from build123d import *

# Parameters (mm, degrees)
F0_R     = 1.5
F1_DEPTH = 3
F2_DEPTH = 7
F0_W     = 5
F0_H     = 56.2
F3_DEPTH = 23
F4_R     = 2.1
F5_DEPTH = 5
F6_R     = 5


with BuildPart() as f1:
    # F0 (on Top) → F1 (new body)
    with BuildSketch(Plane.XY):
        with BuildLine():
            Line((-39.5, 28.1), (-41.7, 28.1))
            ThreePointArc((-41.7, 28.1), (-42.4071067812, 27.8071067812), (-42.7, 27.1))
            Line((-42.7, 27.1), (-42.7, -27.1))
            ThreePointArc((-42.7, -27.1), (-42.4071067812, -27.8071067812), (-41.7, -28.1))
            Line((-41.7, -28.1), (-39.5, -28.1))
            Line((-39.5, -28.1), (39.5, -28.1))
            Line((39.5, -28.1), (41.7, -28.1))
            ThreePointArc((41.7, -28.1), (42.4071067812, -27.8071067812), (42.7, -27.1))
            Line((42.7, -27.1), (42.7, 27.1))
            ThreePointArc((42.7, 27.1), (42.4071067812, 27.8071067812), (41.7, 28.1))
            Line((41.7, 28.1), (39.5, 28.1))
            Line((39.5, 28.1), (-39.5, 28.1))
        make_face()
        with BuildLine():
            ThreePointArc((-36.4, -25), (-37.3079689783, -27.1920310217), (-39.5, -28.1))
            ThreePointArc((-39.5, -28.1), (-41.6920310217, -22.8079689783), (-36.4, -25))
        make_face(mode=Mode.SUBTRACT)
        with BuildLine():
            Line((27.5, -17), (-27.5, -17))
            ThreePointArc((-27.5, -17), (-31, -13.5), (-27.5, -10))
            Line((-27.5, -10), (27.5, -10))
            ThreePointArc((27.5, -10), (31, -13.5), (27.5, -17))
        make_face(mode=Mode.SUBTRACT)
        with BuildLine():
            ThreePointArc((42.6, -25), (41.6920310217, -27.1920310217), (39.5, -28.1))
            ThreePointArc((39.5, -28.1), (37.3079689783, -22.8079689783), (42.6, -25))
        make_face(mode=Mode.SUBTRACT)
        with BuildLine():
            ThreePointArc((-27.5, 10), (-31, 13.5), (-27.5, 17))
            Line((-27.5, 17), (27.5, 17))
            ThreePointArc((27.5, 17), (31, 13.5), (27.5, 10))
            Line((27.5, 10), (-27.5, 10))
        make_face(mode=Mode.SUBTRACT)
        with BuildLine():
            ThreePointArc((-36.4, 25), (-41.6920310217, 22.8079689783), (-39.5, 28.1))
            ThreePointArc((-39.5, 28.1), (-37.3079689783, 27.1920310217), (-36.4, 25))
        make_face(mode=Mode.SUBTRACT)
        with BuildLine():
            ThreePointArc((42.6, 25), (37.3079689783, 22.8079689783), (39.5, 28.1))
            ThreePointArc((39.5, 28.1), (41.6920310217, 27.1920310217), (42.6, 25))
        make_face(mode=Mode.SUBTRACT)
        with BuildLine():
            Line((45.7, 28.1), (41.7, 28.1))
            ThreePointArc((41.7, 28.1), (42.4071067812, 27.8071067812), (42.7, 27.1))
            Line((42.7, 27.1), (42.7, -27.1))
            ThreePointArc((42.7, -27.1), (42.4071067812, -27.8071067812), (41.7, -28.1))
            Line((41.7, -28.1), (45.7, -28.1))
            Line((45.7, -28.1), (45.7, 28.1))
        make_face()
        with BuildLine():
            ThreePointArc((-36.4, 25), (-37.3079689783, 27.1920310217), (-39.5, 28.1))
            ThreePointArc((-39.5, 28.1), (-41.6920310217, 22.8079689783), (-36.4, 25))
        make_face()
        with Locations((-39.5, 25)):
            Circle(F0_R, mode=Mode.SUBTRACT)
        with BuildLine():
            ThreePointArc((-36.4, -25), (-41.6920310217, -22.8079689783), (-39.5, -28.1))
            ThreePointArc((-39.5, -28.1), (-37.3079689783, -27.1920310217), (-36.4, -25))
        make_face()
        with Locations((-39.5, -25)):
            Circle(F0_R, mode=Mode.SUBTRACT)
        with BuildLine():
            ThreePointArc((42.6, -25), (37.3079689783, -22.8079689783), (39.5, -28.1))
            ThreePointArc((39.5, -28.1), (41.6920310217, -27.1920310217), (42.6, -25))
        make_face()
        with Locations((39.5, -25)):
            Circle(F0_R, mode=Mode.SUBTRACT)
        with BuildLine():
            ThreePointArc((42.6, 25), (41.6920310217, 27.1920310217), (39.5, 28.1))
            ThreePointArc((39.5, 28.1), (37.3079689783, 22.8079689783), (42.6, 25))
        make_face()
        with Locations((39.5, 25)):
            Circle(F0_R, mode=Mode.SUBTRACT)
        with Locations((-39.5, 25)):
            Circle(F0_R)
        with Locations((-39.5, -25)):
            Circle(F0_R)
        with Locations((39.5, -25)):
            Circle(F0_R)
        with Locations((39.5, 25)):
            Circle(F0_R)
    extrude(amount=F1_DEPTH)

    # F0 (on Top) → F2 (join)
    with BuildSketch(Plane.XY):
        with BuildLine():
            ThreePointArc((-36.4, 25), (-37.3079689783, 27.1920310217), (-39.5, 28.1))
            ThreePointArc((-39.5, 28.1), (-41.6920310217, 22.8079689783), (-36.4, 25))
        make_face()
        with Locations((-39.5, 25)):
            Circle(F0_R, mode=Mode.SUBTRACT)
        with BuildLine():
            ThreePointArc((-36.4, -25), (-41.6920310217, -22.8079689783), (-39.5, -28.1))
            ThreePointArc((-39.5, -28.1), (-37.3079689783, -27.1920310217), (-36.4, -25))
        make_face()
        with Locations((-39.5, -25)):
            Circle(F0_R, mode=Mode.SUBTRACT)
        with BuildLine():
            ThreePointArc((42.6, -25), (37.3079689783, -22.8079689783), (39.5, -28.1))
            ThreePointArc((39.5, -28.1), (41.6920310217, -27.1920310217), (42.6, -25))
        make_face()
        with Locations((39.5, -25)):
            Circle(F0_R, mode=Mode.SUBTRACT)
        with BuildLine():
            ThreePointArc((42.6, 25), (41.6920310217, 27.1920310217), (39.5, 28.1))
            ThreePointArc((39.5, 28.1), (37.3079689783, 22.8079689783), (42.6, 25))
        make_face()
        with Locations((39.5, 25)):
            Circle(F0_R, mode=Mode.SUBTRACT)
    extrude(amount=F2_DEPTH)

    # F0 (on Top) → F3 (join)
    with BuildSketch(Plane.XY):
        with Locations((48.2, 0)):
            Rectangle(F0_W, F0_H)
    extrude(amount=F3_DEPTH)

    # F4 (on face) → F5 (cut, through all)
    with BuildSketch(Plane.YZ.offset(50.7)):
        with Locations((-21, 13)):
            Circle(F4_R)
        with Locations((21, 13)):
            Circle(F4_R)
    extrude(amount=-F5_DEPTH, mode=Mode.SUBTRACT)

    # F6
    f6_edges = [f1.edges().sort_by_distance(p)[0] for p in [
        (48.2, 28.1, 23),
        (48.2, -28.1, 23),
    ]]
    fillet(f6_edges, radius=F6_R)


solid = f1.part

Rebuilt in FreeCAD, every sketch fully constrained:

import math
import FreeCAD as App
import Part
import Sketcher

V = App.Vector


def edges_at(feature, points):
    """Names of the edges that pass closest to the given points."""
    edges = feature.Shape.Edges
    near = lambda p: min(range(len(edges)), key=lambda i: edges[i].distToShape(Part.Vertex(*p))[0])
    return sorted({f"Edge{near(p) + 1}" for p in points})


def add_polygon(sketch, points):
    """Adds a closed chain of lines whose ends are joined by coincident constraints."""
    first, n = sketch.GeometryCount, len(points)
    for a, b in zip(points, points[1:] + points[:1]):
        sketch.addGeometry(Part.LineSegment(App.Vector(*a, 0), App.Vector(*b, 0)), False)
    for i in range(n):
        sketch.addConstraint(Sketcher.Constraint("Coincident", first + i, 2, first + (i + 1) % n, 1))

doc = App.newDocument("Part")
body = doc.addObject("PartDesign::Body", "Body")

sketch1 = doc.addObject("Sketcher::SketchObject", "Sketch")
body.addObject(sketch1)
sketch1.AttachmentSupport = (doc.XY_Plane, [""])
sketch1.MapMode = "FlatFace"
sketch1.addGeometry([
    Part.LineSegment(V(45.7, -28.1, 0), V(45.7, 28.1, 0)),
    Part.LineSegment(V(45.7, 28.1, 0), V(-41.7, 28.1, 0)),
    Part.ArcOfCircle(Part.Circle(V(-41.7, 27.1, 0), V(0, 0, 1), 1), math.radians(90), math.radians(180)),
    Part.LineSegment(V(-42.7, 27.1, 0), V(-42.7, -27.1, 0)),
    Part.ArcOfCircle(Part.Circle(V(-41.7, -27.1, 0), V(0, 0, 1), 1), math.radians(180), math.radians(270)),
    Part.LineSegment(V(-41.7, -28.1, 0), V(45.7, -28.1, 0)),
    Part.ArcOfCircle(Part.Circle(V(27.5, -13.5, 0), V(0, 0, 1), 3.5), math.radians(-90), math.radians(90)),
    Part.LineSegment(V(27.5, -17, 0), V(-27.5, -17, 0)),
    Part.ArcOfCircle(Part.Circle(V(-27.5, -13.5, 0), V(0, 0, 1), 3.5), math.radians(90), math.radians(270)),
    Part.LineSegment(V(-27.5, -10, 0), V(27.5, -10, 0)),
    Part.LineSegment(V(27.5, 10, 0), V(-27.5, 10, 0)),
    Part.ArcOfCircle(Part.Circle(V(-27.5, 13.5, 0), V(0, 0, 1), 3.5), math.radians(90), math.radians(270)),
    Part.LineSegment(V(-27.5, 17, 0), V(27.5, 17, 0)),
    Part.ArcOfCircle(Part.Circle(V(27.5, 13.5, 0), V(0, 0, 1), 3.5), math.radians(-90), math.radians(90)),
], False)
sketch1.addConstraint([
    Sketcher.Constraint("Coincident", 0, 2, 1, 1),
    Sketcher.Constraint("Tangent", 1, 2, 2, 1),
    Sketcher.Constraint("Tangent", 2, 2, 3, 1),
    Sketcher.Constraint("Tangent", 3, 2, 4, 1),
    Sketcher.Constraint("Tangent", 4, 2, 5, 1),
    Sketcher.Constraint("Coincident", 5, 2, 0, 1),
    Sketcher.Constraint("Tangent", 6, 1, 7, 1),
    Sketcher.Constraint("Tangent", 7, 2, 8, 2),
    Sketcher.Constraint("Tangent", 8, 1, 9, 1),
    Sketcher.Constraint("Tangent", 9, 2, 6, 2),
    Sketcher.Constraint("Tangent", 10, 2, 11, 2),
    Sketcher.Constraint("Tangent", 11, 1, 12, 1),
    Sketcher.Constraint("Tangent", 12, 2, 13, 2),
    Sketcher.Constraint("Tangent", 13, 1, 10, 1),
    Sketcher.Constraint("Vertical", 0),
    Sketcher.Constraint("Horizontal", 1),
    Sketcher.Constraint("Vertical", 3),
    Sketcher.Constraint("Horizontal", 5),
    Sketcher.Constraint("Horizontal", 7),
    Sketcher.Constraint("Horizontal", 9),
    Sketcher.Constraint("Horizontal", 10),
    Sketcher.Constraint("Horizontal", 12),
    Sketcher.Constraint("Equal", 2, 4),
    Sketcher.Constraint("Equal", 8, 11),
    Sketcher.Constraint("Symmetric", 6, 3, 11, 3, -1, 1),
    Sketcher.Constraint("Vertical", 8, 3, 11, 3),
    Sketcher.Constraint("Vertical", 6, 3, 13, 3),
    Sketcher.Constraint("Radius", 2, 1.0),
    Sketcher.Constraint("Radius", 6, 3.5),
    Sketcher.Constraint("DistanceX", 7, 2, 7, 1, 55.0),
    Sketcher.Constraint("DistanceX", 1, 2, 1, 1, 87.4),
    Sketcher.Constraint("DistanceY", 0, 1, 0, 2, 56.2),
    Sketcher.Constraint("DistanceY", 6, 1, -1, 1, 17.0),
    Sketcher.Constraint("DistanceX", 2, 3, -1, 1, 41.7),
    Sketcher.Constraint("DistanceY", -1, 1, 2, 3, 27.1),
])
pad1 = doc.addObject("PartDesign::Pad", "Pad")
body.addObject(pad1)
pad1.Profile = sketch1
pad1.Length = 3

sketch2 = doc.addObject("Sketcher::SketchObject", "Sketch001")
body.addObject(sketch2)
sketch2.AttachmentSupport = (doc.XY_Plane, [""])
sketch2.MapMode = "FlatFace"
sketch2.addGeometry([
    Part.ArcOfCircle(Part.Circle(V(-39.5, 25, 0), V(0, 0, 1), 3.1), math.radians(0), math.radians(90)),
    Part.ArcOfCircle(Part.Circle(V(-39.5, 25, 0), V(0, 0, 1), 3.1), math.radians(90), math.radians(360)),
    Part.Circle(V(-39.5, 25, 0), V(0, 0, 1), 1.5),
    Part.ArcOfCircle(Part.Circle(V(-39.5, -25, 0), V(0, 0, 1), 3.1), math.radians(0), math.radians(270)),
    Part.ArcOfCircle(Part.Circle(V(-39.5, -25, 0), V(0, 0, 1), 3.1), math.radians(-90), math.radians(0)),
    Part.Circle(V(-39.5, -25, 0), V(0, 0, 1), 1.5),
    Part.ArcOfCircle(Part.Circle(V(39.5, -25, 0), V(0, 0, 1), 3.1), math.radians(0), math.radians(270)),
    Part.ArcOfCircle(Part.Circle(V(39.5, -25, 0), V(0, 0, 1), 3.1), math.radians(-90), math.radians(0)),
    Part.Circle(V(39.5, -25, 0), V(0, 0, 1), 1.5),
    Part.ArcOfCircle(Part.Circle(V(39.5, 25, 0), V(0, 0, 1), 3.1), math.radians(0), math.radians(90)),
    Part.ArcOfCircle(Part.Circle(V(39.5, 25, 0), V(0, 0, 1), 3.1), math.radians(90), math.radians(360)),
    Part.Circle(V(39.5, 25, 0), V(0, 0, 1), 1.5),
], False)
sketch2.addConstraint([
    Sketcher.Constraint("Tangent", 0, 1, 1, 2),
    Sketcher.Constraint("Coincident", 1, 1, 0, 2),
    Sketcher.Constraint("Tangent", 3, 1, 4, 2),
    Sketcher.Constraint("Coincident", 4, 1, 3, 2),
    Sketcher.Constraint("Tangent", 6, 1, 7, 2),
    Sketcher.Constraint("Coincident", 7, 1, 6, 2),
    Sketcher.Constraint("Tangent", 9, 1, 10, 2),
    Sketcher.Constraint("Coincident", 10, 1, 9, 2),
    Sketcher.Constraint("Coincident", 2, 3, 0, 3),
    Sketcher.Constraint("Coincident", 5, 3, 3, 3),
    Sketcher.Constraint("Coincident", 8, 3, 6, 3),
    Sketcher.Constraint("Coincident", 11, 3, 9, 3),
    Sketcher.Constraint("Equal", 1, 3),
    Sketcher.Constraint("Equal", 2, 5),
    Sketcher.Constraint("Equal", 4, 6),
    Sketcher.Constraint("Equal", 5, 8),
    Sketcher.Constraint("Equal", 7, 9),
    Sketcher.Constraint("Equal", 8, 11),
    Sketcher.Constraint("Symmetric", 0, 3, 6, 3, -1, 1),
    Sketcher.Constraint("Symmetric", 3, 3, 9, 3, -1, 1),
    Sketcher.Constraint("Symmetric", 3, 3, 6, 3, -2),
    Sketcher.Constraint("Horizontal", 11, 3, 0, 1),
    Sketcher.Constraint("Horizontal", 8, 3, 3, 1),
    Sketcher.Constraint("Horizontal", 3, 1, 6, 1),
    Sketcher.Constraint("Horizontal", 0, 1, 9, 1),
    Sketcher.Constraint("Vertical", 5, 3, 1, 1),
    Sketcher.Constraint("Vertical", 1, 1, 4, 1),
    Sketcher.Constraint("Vertical", 11, 3, 7, 1),
    Sketcher.Constraint("Vertical", 7, 1, 10, 1),
    Sketcher.Constraint("Diameter", 2, 3.0),
    Sketcher.Constraint("Radius", 0, 3.1),
    Sketcher.Constraint("DistanceY", -1, 1, 0, 3, 25.0),
    Sketcher.Constraint("DistanceX", 3, 3, 6, 3, 79.0),
])
pad2 = doc.addObject("PartDesign::Pad", "Pad001")
body.addObject(pad2)
pad2.Profile = sketch2
pad2.Length = 7

sketch3 = doc.addObject("Sketcher::SketchObject", "Sketch002")
body.addObject(sketch3)
sketch3.AttachmentSupport = (doc.XY_Plane, [""])
sketch3.MapMode = "FlatFace"
add_polygon(sketch3, [(45.7, 28.1), (45.7, -28.1), (50.7, -28.1), (50.7, 28.1)])
sketch3.addConstraint([
    Sketcher.Constraint("Vertical", 0),
    Sketcher.Constraint("Horizontal", 1),
    Sketcher.Constraint("Vertical", 2),
    Sketcher.Constraint("Horizontal", 3),
    Sketcher.Constraint("DistanceX", 1, 1, 1, 2, 5.0),
    Sketcher.Constraint("DistanceY", 0, 2, 0, 1, 56.2),
    Sketcher.Constraint("DistanceX", -1, 1, 0, 2, 45.7),
    Sketcher.Constraint("DistanceY", 0, 2, -1, 1, 28.1),
])
pad3 = doc.addObject("PartDesign::Pad", "Pad002")
body.addObject(pad3)
pad3.Profile = sketch3
pad3.Length = 23

sketch4 = doc.addObject("Sketcher::SketchObject", "Sketch003")
body.addObject(sketch4)
sketch4.AttachmentSupport = (doc.YZ_Plane, [""])
sketch4.MapMode = "FlatFace"
sketch4.AttachmentOffset = App.Placement(V(0, 0, 50.7), App.Rotation())
sketch4.addGeometry([
    Part.Circle(V(-21, 13, 0), V(0, 0, 1), 2.1),
    Part.Circle(V(21, 13, 0), V(0, 0, 1), 2.1),
], False)
sketch4.addConstraint([
    Sketcher.Constraint("Equal", 0, 1),
    Sketcher.Constraint("Symmetric", 0, 3, 1, 3, -2),
    Sketcher.Constraint("Diameter", 0, 4.2),
    Sketcher.Constraint("DistanceX", 0, 3, -1, 1, 21.0),
    Sketcher.Constraint("DistanceY", -1, 1, 0, 3, 13.0),
])
pocket1 = doc.addObject("PartDesign::Pocket", "Pocket")
body.addObject(pocket1)
pocket1.Profile = sketch4
pocket1.Type = "ThroughAll"
doc.recompute()

fillet = doc.addObject("PartDesign::Fillet", "Fillet")
body.addObject(fillet)
fillet.Base = (pocket1, edges_at(pocket1, [(48.2, 28.1, 23), (48.2, -28.1, 23)]))
fillet.Radius = 5

doc.recompute()
